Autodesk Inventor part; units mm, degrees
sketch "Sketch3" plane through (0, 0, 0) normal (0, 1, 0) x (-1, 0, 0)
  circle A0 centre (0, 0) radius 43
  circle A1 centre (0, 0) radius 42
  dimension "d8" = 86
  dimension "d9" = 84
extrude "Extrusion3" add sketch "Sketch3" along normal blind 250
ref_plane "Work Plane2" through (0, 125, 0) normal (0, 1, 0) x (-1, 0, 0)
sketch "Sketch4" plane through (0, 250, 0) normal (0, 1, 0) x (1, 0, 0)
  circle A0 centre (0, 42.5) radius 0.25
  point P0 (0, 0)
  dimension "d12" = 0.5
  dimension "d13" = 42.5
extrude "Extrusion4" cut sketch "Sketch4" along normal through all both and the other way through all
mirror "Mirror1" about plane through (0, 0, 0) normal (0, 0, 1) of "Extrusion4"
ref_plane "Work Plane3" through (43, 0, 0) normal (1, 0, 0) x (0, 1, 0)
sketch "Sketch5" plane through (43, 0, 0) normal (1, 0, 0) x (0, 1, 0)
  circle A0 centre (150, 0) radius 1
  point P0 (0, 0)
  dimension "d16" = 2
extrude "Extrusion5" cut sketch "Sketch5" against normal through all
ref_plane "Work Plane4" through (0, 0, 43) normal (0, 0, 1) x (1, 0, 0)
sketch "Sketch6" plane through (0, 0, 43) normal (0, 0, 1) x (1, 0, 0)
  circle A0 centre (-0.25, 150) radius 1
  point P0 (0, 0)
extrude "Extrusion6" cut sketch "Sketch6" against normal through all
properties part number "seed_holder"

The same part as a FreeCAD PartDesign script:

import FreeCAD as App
import Part
import Sketcher

V = App.Vector

doc = App.newDocument("Part")
params = doc.addObject("Spreadsheet::Sheet", "Params")
for row, (alias, value) in enumerate([
    ("sketch1_diameter", "86 mm"),
    ("sketch1_diameter2", "84 mm"),
    ("pad1_length", "250 mm"),
    ("sketch2_diameter", "0.5 mm"),
    ("sketch3_diameter", "2 mm"),
    ("sketch4_diameter", "2 mm"),
], start=1):
    params.set(f"A{row}", alias)
    params.set(f"B{row}", "=" + value)
    params.setAlias(f"B{row}", alias)

body = doc.addObject("PartDesign::Body", "Body")

# Sketch on XZ plane
sketch1 = body.newObject("Sketcher::SketchObject", "Sketch")
sketch1.AttachmentSupport = (doc.getObject("XZ_Plane"), [""])
sketch1.MapMode = "FlatFace"
sketch1.addGeometry([
    Part.Circle(V(0, 0, 0), V(0, 0, 1), 43),
    Part.Circle(V(0, 0, 0), V(0, 0, 1), 42),
], False)
sketch1.addConstraint([
    Sketcher.Constraint("Coincident", 0, 3, -1, 1),
    Sketcher.Constraint("Coincident", 1, 3, -1, 1),
    Sketcher.Constraint("Diameter", 0, 86.0),
    Sketcher.Constraint("Diameter", 1, 84.0),
])
sketch1.setExpression("Constraints[2]", "Params.sketch1_diameter")
sketch1.setExpression("Constraints[3]", "Params.sketch1_diameter2")
pad1 = body.newObject("PartDesign::Pad", "Pad")
pad1.Profile = sketch1
pad1.setExpression("Length", "Params.pad1_length")
pad1.Reversed = True

# Sketch on XZ plane
sketch2 = body.newObject("Sketcher::SketchObject", "Sketch001")
sketch2.AttachmentSupport = (doc.getObject("XZ_Plane"), [""])
sketch2.MapMode = "FlatFace"
sketch2.AttachmentOffset = App.Placement(V(0, 0, -250), App.Rotation())
sketch2.addGeometry(Part.Circle(V(0, -42.5, 0), V(0, 0, 1), 0.25), False)
sketch2.addConstraint([
    Sketcher.Constraint("PointOnObject", 0, 3, -2),
    Sketcher.Constraint("Diameter", 0, 0.5),
    Sketcher.Constraint("DistanceY", 0, 3, -1, 1, 42.5),
])
sketch2.setExpression("Constraints[1]", "Params.sketch2_diameter")
pocket1 = body.newObject("PartDesign::Pocket", "Pocket")
pocket1.Profile = sketch2
pocket1.Type = "ThroughAll"
pocket1.Midplane = True
doc.recompute()

mirrored = body.newObject("PartDesign::Mirrored", "Mirrored")
mirrored.Originals = [pocket1]
mirrored.MirrorPlane = (doc.getObject("XY_Plane"), [""])
body.Tip = mirrored

# Sketch on YZ plane
sketch3 = body.newObject("Sketcher::SketchObject", "Sketch002")
sketch3.AttachmentSupport = (doc.getObject("YZ_Plane"), [""])
sketch3.MapMode = "FlatFace"
sketch3.AttachmentOffset = App.Placement(V(0, 0, 43), App.Rotation())
sketch3.addGeometry(Part.Circle(V(150, 0, 0), V(0, 0, 1), 1), False)
sketch3.addConstraint([
    Sketcher.Constraint("PointOnObject", 0, 3, -1),
    Sketcher.Constraint("Diameter", 0, 2.0),
    Sketcher.Constraint("DistanceX", -1, 1, 0, 3, 150.0),
])
sketch3.setExpression("Constraints[1]", "Params.sketch3_diameter")
pocket2 = body.newObject("PartDesign::Pocket", "Pocket001")
pocket2.Profile = sketch3
pocket2.Type = "ThroughAll"

# Sketch on XY plane
sketch4 = body.newObject("Sketcher::SketchObject", "Sketch003")
sketch4.AttachmentSupport = (doc.getObject("XY_Plane"), [""])
sketch4.MapMode = "FlatFace"
sketch4.AttachmentOffset = App.Placement(V(0, 0, 43), App.Rotation())
sketch4.addGeometry(Part.Circle(V(-0.25, 150, 0), V(0, 0, 1), 1), False)
sketch4.addConstraint([
    Sketcher.Constraint("Diameter", 0, 2.0),
    Sketcher.Constraint("DistanceY", -1, 1, 0, 3, 150.0),
    Sketcher.Constraint("DistanceX", 0, 3, -1, 1, 0.25),
])
sketch4.setExpression("Constraints[0]", "Params.sketch4_diameter")
pocket3 = body.newObject("PartDesign::Pocket", "Pocket002")
pocket3.Profile = sketch4
pocket3.Type = "ThroughAll"

doc.recompute()
